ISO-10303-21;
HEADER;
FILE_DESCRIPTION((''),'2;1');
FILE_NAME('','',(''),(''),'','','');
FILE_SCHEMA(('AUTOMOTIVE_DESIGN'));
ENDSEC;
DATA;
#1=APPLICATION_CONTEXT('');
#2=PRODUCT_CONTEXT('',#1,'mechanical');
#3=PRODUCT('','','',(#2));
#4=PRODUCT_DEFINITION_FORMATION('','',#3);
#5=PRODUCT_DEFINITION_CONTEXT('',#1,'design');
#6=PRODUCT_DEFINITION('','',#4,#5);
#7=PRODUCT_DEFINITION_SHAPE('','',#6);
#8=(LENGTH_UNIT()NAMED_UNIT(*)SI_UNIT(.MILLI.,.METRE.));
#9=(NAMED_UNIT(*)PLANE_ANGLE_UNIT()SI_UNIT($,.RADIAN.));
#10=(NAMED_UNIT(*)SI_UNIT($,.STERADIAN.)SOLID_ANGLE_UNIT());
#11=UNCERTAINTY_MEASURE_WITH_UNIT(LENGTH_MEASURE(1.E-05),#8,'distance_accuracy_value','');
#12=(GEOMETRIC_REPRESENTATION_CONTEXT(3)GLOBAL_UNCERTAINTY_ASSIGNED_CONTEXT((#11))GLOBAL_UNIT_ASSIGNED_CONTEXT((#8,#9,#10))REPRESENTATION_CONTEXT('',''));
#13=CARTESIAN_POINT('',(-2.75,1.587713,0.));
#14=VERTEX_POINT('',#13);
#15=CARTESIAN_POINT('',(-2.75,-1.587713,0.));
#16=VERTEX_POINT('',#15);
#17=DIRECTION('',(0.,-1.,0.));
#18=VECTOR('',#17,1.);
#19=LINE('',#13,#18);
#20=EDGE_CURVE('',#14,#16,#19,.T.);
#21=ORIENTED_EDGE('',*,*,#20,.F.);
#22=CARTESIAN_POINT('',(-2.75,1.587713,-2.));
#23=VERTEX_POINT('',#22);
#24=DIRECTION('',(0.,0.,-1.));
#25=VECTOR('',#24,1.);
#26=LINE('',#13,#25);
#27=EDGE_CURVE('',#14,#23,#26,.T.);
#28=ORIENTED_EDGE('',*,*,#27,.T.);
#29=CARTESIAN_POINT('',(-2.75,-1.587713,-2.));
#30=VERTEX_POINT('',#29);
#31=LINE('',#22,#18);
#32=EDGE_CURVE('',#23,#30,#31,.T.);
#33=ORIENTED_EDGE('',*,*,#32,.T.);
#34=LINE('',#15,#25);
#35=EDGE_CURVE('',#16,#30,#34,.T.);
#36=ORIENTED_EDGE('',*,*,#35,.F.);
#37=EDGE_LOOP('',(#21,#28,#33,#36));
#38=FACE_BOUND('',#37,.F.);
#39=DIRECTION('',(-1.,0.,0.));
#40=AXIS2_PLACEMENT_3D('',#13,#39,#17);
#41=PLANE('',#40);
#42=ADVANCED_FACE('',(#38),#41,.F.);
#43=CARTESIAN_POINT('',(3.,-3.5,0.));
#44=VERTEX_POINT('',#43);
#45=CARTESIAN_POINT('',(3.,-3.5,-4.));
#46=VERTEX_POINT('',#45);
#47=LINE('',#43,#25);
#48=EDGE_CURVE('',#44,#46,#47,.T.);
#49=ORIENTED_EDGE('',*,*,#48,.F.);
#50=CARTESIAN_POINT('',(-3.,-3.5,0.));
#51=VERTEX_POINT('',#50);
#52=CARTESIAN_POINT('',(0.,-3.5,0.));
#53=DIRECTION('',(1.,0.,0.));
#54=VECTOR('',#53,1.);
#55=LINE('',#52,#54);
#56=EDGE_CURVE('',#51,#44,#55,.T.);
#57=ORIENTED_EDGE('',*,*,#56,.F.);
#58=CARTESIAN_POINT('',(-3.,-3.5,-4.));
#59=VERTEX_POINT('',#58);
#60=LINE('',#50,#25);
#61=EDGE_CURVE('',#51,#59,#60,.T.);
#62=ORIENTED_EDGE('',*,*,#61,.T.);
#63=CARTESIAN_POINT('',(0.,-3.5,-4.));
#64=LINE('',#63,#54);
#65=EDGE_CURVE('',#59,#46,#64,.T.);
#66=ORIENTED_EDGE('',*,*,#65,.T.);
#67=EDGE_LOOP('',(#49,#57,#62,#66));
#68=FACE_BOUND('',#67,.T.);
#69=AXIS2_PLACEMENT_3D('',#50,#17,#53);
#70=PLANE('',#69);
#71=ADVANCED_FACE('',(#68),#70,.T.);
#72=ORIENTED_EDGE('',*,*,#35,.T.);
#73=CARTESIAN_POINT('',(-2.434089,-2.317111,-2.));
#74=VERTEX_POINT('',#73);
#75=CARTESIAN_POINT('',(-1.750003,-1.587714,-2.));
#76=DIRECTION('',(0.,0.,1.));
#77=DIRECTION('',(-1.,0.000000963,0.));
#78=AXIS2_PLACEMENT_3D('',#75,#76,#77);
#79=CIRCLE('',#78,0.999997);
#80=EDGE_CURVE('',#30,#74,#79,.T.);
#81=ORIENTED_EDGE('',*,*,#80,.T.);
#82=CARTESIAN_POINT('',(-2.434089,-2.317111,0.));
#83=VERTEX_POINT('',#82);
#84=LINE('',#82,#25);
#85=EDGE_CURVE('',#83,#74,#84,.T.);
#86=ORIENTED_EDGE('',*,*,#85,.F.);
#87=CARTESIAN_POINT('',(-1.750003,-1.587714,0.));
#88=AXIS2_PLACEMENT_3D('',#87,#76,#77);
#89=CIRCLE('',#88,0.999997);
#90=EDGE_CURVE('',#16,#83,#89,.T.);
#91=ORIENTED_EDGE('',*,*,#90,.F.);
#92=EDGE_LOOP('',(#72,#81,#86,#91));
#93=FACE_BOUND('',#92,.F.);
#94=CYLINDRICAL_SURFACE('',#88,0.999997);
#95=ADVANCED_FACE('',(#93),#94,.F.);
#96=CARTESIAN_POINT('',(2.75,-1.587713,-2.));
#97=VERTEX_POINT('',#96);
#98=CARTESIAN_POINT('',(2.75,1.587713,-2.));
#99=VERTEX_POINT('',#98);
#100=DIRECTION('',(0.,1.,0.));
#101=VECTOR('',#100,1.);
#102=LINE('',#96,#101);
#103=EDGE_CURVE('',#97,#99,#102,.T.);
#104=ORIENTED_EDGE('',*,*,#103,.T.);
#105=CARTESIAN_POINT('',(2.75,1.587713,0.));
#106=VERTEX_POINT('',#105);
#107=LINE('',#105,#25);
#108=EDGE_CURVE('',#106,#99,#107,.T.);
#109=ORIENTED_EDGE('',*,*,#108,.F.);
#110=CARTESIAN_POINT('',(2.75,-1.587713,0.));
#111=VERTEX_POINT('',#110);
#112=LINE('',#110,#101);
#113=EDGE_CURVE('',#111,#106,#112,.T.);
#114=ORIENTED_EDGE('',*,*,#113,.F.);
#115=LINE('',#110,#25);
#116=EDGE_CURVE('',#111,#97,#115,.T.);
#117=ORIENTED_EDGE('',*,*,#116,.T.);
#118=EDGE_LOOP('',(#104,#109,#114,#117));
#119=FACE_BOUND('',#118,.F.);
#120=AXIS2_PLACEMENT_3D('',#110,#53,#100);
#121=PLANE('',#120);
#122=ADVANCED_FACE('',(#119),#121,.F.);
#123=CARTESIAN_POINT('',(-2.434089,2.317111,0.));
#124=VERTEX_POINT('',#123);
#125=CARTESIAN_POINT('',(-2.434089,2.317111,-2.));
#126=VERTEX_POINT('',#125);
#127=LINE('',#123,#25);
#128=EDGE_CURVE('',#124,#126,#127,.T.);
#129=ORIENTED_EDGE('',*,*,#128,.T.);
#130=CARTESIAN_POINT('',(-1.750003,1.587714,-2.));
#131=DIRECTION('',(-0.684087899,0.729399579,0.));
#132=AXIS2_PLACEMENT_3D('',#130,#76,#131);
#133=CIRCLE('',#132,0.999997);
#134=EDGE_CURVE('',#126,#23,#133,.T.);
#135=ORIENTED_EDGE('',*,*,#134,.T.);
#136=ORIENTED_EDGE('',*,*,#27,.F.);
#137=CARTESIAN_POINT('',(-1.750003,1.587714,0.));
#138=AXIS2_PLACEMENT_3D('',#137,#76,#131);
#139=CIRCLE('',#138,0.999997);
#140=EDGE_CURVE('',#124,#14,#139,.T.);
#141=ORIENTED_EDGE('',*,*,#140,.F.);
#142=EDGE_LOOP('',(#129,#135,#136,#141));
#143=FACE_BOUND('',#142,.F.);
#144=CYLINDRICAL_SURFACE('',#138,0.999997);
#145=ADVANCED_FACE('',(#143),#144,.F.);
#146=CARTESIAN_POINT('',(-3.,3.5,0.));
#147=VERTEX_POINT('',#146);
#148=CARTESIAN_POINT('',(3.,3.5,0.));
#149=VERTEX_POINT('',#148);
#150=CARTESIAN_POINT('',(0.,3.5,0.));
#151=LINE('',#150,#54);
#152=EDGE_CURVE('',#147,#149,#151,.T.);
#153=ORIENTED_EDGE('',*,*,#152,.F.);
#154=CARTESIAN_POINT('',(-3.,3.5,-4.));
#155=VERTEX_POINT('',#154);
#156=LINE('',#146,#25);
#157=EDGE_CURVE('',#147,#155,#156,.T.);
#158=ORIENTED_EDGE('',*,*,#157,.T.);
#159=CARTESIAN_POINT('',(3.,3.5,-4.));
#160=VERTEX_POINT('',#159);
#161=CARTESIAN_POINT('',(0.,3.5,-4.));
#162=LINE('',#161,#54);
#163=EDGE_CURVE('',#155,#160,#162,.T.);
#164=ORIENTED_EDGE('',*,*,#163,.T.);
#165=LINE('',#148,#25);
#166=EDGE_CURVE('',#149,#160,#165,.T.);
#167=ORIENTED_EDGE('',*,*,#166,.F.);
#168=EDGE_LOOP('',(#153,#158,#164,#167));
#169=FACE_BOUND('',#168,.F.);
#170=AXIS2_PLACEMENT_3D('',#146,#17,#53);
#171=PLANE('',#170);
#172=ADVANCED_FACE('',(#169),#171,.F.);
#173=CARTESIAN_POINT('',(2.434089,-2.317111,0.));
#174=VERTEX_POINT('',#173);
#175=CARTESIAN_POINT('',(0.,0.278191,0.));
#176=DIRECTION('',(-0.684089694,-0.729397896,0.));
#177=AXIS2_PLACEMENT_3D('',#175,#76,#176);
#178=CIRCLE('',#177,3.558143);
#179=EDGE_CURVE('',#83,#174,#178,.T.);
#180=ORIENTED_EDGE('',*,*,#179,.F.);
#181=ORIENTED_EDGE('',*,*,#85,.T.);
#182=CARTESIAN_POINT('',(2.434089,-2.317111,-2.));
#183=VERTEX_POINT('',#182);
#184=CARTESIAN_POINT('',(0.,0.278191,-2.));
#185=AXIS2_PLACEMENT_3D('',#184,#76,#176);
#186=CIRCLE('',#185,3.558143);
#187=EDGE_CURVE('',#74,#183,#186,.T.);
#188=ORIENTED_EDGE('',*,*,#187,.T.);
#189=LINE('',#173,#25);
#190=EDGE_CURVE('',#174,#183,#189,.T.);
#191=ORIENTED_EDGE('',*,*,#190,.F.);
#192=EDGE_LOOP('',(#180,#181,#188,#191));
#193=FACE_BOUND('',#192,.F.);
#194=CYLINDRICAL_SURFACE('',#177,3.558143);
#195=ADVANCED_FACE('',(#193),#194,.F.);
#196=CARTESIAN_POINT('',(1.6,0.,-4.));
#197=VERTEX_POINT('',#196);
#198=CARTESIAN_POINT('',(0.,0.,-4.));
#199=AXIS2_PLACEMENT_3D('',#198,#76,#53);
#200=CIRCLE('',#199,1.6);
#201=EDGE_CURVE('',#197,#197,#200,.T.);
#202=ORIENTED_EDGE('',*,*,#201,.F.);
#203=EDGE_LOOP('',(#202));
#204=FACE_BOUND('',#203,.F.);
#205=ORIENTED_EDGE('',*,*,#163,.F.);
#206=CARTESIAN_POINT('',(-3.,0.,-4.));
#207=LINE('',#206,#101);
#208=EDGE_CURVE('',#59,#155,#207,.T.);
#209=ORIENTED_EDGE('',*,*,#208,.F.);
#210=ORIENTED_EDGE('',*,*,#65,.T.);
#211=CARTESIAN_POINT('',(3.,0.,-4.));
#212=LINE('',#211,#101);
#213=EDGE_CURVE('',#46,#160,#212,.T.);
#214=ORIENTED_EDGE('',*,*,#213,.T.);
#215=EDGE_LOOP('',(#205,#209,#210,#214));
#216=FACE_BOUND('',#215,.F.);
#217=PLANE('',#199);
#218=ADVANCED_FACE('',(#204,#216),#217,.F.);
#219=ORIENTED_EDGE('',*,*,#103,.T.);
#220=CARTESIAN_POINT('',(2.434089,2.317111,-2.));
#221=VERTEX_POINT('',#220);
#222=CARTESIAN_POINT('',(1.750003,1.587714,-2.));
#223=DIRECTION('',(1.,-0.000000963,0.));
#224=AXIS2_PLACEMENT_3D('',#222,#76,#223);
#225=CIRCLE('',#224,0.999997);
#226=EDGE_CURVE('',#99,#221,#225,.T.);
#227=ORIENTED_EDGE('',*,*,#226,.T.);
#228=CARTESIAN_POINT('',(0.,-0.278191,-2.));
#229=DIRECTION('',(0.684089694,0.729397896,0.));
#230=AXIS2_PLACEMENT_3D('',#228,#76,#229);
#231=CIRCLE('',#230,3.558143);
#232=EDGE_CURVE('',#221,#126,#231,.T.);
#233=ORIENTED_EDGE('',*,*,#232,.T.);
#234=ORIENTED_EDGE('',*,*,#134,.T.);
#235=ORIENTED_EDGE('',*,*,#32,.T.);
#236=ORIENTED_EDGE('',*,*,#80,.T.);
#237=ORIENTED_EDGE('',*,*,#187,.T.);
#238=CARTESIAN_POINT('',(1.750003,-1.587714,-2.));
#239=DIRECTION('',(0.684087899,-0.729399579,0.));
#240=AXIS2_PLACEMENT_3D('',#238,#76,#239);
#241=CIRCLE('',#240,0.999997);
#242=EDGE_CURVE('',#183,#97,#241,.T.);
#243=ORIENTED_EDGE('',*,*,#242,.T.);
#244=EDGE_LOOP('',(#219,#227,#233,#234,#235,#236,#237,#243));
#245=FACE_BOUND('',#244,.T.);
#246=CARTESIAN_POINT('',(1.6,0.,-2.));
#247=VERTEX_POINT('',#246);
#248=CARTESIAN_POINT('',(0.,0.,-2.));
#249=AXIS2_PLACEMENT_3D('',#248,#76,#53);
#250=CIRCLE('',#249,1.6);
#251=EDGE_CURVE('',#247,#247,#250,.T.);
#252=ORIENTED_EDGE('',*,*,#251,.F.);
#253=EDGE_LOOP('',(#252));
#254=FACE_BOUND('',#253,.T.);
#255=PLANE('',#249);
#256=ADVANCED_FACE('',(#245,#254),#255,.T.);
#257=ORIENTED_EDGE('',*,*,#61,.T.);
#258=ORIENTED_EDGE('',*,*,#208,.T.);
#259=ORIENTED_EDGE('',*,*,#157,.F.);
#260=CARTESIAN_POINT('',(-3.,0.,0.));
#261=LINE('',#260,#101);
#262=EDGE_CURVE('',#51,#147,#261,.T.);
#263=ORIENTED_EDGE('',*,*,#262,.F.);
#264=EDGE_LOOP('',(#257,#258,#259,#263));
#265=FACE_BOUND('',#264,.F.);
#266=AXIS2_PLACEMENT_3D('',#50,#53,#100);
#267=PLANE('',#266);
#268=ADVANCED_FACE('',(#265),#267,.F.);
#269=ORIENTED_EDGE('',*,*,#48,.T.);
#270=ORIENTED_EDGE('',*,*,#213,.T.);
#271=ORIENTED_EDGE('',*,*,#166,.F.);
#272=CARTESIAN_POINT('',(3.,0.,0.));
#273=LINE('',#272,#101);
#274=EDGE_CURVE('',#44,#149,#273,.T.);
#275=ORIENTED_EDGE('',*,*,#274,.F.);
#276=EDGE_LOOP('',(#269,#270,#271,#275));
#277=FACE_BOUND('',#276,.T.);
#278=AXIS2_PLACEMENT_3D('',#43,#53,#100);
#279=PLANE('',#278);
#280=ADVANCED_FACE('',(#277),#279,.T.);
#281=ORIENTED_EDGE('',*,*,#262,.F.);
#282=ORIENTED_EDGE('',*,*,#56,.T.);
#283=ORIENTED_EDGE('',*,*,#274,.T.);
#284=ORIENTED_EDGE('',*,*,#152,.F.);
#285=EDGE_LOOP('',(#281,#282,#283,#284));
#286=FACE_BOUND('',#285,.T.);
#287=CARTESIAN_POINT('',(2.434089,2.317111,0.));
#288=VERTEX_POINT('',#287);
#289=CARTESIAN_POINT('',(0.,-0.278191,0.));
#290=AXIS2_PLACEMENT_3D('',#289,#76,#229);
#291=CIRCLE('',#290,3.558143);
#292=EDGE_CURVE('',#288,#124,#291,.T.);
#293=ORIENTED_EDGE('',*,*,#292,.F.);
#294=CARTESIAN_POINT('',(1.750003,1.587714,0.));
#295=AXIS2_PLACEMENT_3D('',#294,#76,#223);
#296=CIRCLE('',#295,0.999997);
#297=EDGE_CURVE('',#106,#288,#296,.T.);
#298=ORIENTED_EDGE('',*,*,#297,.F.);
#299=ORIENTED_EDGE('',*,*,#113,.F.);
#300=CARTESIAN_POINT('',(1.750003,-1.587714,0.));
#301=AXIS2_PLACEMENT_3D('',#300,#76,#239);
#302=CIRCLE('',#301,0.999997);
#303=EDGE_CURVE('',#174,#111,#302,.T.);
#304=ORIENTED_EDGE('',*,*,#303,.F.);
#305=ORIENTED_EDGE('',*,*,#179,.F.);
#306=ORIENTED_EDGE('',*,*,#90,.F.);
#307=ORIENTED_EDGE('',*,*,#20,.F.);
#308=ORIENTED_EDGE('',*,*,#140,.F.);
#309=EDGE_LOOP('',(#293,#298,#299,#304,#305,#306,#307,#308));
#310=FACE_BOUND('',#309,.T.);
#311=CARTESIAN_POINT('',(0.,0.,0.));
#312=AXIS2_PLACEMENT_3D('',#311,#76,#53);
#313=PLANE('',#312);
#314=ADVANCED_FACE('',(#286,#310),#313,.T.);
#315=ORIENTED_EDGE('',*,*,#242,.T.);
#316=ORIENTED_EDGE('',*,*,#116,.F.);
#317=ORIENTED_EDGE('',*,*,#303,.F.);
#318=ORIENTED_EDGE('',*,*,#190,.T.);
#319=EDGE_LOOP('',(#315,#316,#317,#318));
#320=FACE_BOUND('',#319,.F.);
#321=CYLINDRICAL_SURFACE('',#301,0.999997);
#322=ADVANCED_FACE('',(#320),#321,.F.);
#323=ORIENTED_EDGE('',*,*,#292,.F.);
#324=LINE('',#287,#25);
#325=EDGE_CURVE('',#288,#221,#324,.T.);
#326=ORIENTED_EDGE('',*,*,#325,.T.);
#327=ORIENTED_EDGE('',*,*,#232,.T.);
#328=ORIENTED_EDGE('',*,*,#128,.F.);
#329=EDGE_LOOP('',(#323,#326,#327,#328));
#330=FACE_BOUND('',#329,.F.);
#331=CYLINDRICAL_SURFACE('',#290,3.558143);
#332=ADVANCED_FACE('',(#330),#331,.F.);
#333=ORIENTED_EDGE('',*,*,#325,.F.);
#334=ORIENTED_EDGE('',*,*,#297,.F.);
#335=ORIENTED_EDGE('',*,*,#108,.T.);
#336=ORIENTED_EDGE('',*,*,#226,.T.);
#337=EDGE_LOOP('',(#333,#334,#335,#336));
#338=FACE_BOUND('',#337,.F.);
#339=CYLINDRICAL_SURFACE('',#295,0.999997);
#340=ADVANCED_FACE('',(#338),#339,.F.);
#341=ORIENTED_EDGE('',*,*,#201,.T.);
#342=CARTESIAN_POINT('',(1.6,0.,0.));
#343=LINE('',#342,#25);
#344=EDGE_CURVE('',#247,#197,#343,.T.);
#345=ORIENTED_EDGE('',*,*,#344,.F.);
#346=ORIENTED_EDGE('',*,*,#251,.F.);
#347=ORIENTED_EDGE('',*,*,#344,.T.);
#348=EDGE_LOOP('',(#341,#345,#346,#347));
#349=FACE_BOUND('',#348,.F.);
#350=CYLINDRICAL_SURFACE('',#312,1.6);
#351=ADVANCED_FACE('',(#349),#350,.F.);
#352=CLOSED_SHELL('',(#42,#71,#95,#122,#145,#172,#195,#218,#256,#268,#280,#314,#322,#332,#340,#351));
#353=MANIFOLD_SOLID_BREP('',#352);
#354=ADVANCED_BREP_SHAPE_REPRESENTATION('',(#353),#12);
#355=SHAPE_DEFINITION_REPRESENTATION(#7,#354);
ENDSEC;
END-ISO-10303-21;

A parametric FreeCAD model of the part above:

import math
import FreeCAD as App
import Part
import Sketcher
Q = App.Units.Quantity


def add_polygon(sketch, points):
    """Adds a closed chain of lines whose ends are joined by coincident constraints."""
    first, n = sketch.GeometryCount, len(points)
    for a, b in zip(points, points[1:] + points[:1]):
        sketch.addGeometry(Part.LineSegment(App.Vector(*a, 0), App.Vector(*b, 0)), False)
    for i in range(n):
        sketch.addConstraint(Sketcher.Constraint("Coincident", first + i, 2, first + (i + 1) % n, 1))

doc = App.newDocument("Part")
params = doc.addObject("Spreadsheet::Sheet", "Params")
for row, (alias, value) in enumerate([
    ("sketch1_diameter", "3.2 mm"),
    ("sketch1_width", "6 mm"),
    ("sketch1_height", "7 mm"),
    ("pad1_length", "4 mm"),
    ("sketch2_diameter", "3.2 mm"),
    ("pocket1_length", "2 mm"),
], start=1):
    params.set(f"A{row}", alias)
    params.set(f"B{row}", "=" + value)
    params.setAlias(f"B{row}", alias)

body = doc.addObject("PartDesign::Body", "Body")

# Sketch on XY plane
sketch1 = body.newObject("Sketcher::SketchObject", "Sketch")
sketch1.AttachmentSupport = (doc.getObject("XY_Plane"), [""])
sketch1.MapMode = "FlatFace"
add_polygon(sketch1, [(-3, 3.5), (-3, -3.5), (3, -3.5), (3, 3.5)])  # lines 0-3
sketch1.addGeometry(Part.Circle(App.Vector(0, 0, 0), App.Vector(0, 0, 1), 1.6), False)  # 4
sketch1.addConstraint(Sketcher.Constraint("Vertical", 0))
sketch1.addConstraint(Sketcher.Constraint("Horizontal", 1))
sketch1.addConstraint(Sketcher.Constraint("Vertical", 2))
sketch1.addConstraint(Sketcher.Constraint("Horizontal", 3))
sketch1.addConstraint(Sketcher.Constraint("Coincident", 4, 3, -1, 1))
sketch1.addConstraint(Sketcher.Constraint("Symmetric", 0, 2, 2, 2, -1, 1))
sketch1.addConstraint(Sketcher.Constraint("Diameter", 4, Q("3.2 mm")))
sketch1.addConstraint(Sketcher.Constraint("DistanceX", 1, 1, 1, 2, Q("6 mm")))
sketch1.addConstraint(Sketcher.Constraint("DistanceY", 0, 2, 0, 1, Q("7 mm")))
sketch1.setExpression("Constraints[10]", "Params.sketch1_diameter")
sketch1.setExpression("Constraints[11]", "Params.sketch1_width")
sketch1.setExpression("Constraints[12]", "Params.sketch1_height")
pad1 = body.newObject("PartDesign::Pad", "Pad")
pad1.Profile = sketch1
pad1.setExpression("Length", "Params.pad1_length")
pad1.Reversed = True

# Sketch on XY plane
sketch2 = body.newObject("Sketcher::SketchObject", "Sketch001")
sketch2.AttachmentSupport = (doc.getObject("XY_Plane"), [""])
sketch2.MapMode = "FlatFace"
sketch2.addGeometry(Part.LineSegment(App.Vector(2.8, -1.6, 0), App.Vector(2.8, 1.6, 0)), False)
sketch2.addGeometry(Part.ArcOfCircle(Part.Circle(App.Vector(1.8, 1.6, 0), App.Vector(0, 0, 1), 1), math.radians(0), math.radians(47)), False)
sketch2.addGeometry(Part.ArcOfCircle(Part.Circle(App.Vector(0, -0.3, 0), App.Vector(0, 0, 1), 3.6), math.radians(47), math.radians(133)), False)
sketch2.addGeometry(Part.ArcOfCircle(Part.Circle(App.Vector(-1.8, 1.6, 0), App.Vector(0, 0, 1), 1), math.radians(133), math.radians(180)), False)
sketch2.addGeometry(Part.LineSegment(App.Vector(-2.8, 1.6, 0), App.Vector(-2.8, -1.6, 0)), False)
sketch2.addGeometry(Part.ArcOfCircle(Part.Circle(App.Vector(-1.8, -1.6, 0), App.Vector(0, 0, 1), 1), math.radians(180), math.radians(227)), False)
sketch2.addGeometry(Part.ArcOfCircle(Part.Circle(App.Vector(0, 0.3, 0), App.Vector(0, 0, 1), 3.6), math.radians(-133), math.radians(-47)), False)
sketch2.addGeometry(Part.ArcOfCircle(Part.Circle(App.Vector(1.8, -1.6, 0), App.Vector(0, 0, 1), 1), math.radians(-47), math.radians(0)), False)
sketch2.addGeometry(Part.Circle(App.Vector(0, 0, 0), App.Vector(0, 0, 1), 1.6), False)
sketch2.addConstraint(Sketcher.Constraint("Tangent", 0, 2, 1, 1))
sketch2.addConstraint(Sketcher.Constraint("Coincident", 1, 2, 2, 1))
sketch2.addConstraint(Sketcher.Constraint("Coincident", 2, 2, 3, 1))
sketch2.addConstraint(Sketcher.Constraint("Tangent", 3, 2, 4, 1))
sketch2.addConstraint(Sketcher.Constraint("Tangent", 4, 2, 5, 1))
sketch2.addConstraint(Sketcher.Constraint("Coincident", 5, 2, 6, 1))
sketch2.addConstraint(Sketcher.Constraint("Coincident", 6, 2, 7, 1))
sketch2.addConstraint(Sketcher.Constraint("Tangent", 7, 2, 0, 1))
sketch2.addConstraint(Sketcher.Constraint("Vertical", 0))
sketch2.addConstraint(Sketcher.Constraint("Vertical", 4))
sketch2.addConstraint(Sketcher.Constraint("Coincident", 8, 3, -1, 1))
sketch2.addConstraint(Sketcher.Constraint("Equal", 1, 3))
sketch2.addConstraint(Sketcher.Constraint("Equal", 3, 5))
sketch2.addConstraint(Sketcher.Constraint("Equal", 2, 6))
sketch2.addConstraint(Sketcher.Constraint("Equal", 5, 7))
sketch2.addConstraint(Sketcher.Constraint("Symmetric", 1, 3, 5, 3, -1, 1))
sketch2.addConstraint(Sketcher.Constraint("Symmetric", 2, 2, 6, 2, -1, 1))
sketch2.addConstraint(Sketcher.Constraint("Symmetric", 1, 2, 2, 2, -2))
sketch2.addConstraint(Sketcher.Constraint("Horizontal", 5, 2, 6, 2))
sketch2.addConstraint(Sketcher.Constraint("Diameter", 8, Q("3.2 mm")))
sketch2.addConstraint(Sketcher.Constraint("DistanceX", -1, 1, 0, 2, Q("2.75 mm")))
sketch2.addConstraint(Sketcher.Constraint("Radius", 1, Q("0.999997 mm")))
sketch2.addConstraint(Sketcher.Constraint("Radius", 2, Q("3.558143 mm")))
sketch2.addConstraint(Sketcher.Constraint("DistanceY", 0, 2, 1, 2, Q("0.729398 mm")))
sketch2.addConstraint(Sketcher.Constraint("DistanceY", 0, 1, 0, 2, Q("3.175426 mm")))
sketch2.setExpression("Constraints[19]", "Params.sketch2_diameter")
pocket1 = body.newObject("PartDesign::Pocket", "Pocket")
pocket1.Profile = sketch2
pocket1.setExpression("Length", "Params.pocket1_length")

doc.recompute()
